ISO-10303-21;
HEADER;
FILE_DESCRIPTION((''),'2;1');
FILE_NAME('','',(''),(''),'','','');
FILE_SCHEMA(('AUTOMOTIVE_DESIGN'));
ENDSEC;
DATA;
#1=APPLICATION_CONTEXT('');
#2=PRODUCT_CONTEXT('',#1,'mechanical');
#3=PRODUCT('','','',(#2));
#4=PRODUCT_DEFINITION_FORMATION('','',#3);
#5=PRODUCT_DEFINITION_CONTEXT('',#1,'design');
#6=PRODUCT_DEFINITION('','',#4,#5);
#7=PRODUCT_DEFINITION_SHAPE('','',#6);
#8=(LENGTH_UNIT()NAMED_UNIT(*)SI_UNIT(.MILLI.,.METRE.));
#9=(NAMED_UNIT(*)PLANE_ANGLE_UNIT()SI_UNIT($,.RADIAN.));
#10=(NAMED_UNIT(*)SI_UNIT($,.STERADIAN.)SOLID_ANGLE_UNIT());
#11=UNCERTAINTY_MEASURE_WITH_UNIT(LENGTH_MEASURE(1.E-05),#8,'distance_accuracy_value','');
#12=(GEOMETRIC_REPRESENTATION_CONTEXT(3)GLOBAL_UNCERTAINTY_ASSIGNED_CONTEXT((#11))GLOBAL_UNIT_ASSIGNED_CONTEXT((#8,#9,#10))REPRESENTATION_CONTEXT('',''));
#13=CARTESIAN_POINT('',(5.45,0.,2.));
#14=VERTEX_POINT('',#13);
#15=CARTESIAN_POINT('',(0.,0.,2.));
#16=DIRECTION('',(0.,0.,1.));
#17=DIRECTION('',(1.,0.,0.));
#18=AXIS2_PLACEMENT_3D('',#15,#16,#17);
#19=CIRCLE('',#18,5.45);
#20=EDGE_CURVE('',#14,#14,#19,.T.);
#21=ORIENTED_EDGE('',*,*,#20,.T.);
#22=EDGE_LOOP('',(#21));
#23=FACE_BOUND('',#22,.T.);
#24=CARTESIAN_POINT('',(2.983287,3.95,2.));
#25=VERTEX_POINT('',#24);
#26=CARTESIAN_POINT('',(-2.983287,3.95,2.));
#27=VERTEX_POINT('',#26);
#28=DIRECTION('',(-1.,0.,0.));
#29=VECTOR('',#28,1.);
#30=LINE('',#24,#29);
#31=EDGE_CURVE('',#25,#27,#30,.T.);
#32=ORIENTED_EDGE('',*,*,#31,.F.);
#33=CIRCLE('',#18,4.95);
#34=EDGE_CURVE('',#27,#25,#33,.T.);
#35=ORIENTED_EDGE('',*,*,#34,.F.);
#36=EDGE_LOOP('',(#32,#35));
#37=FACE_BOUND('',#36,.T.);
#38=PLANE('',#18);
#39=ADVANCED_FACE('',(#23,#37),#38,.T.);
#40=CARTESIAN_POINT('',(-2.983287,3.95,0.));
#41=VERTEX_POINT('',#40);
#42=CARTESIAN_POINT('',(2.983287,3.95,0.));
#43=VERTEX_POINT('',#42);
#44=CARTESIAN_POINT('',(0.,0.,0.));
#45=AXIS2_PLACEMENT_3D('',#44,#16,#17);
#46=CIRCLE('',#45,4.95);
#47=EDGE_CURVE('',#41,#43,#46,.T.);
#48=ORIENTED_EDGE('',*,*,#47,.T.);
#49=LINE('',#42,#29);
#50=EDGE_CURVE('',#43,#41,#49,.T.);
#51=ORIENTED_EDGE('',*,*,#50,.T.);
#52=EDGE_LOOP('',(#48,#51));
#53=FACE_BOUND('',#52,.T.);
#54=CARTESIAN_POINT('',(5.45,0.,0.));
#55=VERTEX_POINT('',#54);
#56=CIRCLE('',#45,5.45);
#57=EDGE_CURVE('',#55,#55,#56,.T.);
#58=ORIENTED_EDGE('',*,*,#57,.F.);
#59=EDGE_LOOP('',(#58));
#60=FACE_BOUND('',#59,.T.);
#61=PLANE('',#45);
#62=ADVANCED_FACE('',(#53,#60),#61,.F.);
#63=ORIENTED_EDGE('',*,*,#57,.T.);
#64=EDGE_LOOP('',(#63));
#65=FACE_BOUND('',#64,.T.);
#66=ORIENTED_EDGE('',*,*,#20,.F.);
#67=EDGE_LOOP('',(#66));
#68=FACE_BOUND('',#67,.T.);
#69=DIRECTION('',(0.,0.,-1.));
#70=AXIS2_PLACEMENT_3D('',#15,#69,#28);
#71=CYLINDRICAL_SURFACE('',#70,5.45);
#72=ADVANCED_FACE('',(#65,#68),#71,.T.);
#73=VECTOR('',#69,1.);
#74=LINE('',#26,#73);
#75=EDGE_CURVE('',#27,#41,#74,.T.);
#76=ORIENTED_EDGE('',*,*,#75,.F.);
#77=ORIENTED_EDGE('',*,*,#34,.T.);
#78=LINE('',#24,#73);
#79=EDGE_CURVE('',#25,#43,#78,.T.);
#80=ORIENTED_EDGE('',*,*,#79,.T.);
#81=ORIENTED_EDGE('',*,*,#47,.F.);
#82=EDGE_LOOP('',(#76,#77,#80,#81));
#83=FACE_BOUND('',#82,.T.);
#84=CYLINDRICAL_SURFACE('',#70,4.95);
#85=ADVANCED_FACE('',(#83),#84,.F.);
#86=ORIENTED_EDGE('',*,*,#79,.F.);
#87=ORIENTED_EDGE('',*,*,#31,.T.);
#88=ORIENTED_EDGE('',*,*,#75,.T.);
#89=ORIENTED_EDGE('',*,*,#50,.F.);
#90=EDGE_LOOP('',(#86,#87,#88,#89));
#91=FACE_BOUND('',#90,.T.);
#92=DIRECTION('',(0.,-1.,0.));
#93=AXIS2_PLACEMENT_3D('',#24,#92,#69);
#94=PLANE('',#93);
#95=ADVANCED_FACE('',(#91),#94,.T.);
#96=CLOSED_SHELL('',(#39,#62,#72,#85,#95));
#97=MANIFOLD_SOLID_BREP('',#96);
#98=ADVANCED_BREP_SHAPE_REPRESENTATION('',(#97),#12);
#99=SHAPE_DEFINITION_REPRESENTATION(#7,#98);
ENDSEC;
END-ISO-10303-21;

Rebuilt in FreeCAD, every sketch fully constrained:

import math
import FreeCAD as App
import Part
import Sketcher
Q = App.Units.Quantity

doc = App.newDocument("Part")
body = doc.addObject("PartDesign::Body", "Body")

sketch1 = body.newObject("Sketcher::SketchObject", "Sketch")
sketch1.AttachmentSupport = (doc.getObject("XY_Plane"), [""])
sketch1.MapMode = "FlatFace"
sketch1.addGeometry([
    Part.Circle(App.Vector(0, 0, 0), App.Vector(0, 0, 1), 5.5),
    Part.LineSegment(App.Vector(-3, 4, 0), App.Vector(3, 4, 0)),
    Part.ArcOfCircle(Part.Circle(App.Vector(0, 0, 0), App.Vector(0, 0, 1), 5), math.radians(127), math.radians(413)),
], False)
sketch1.addConstraint([
    Sketcher.Constraint("Coincident", 1, 1, 2, 1),
    Sketcher.Constraint("Coincident", 2, 2, 1, 2),
    Sketcher.Constraint("Horizontal", 1),
    Sketcher.Constraint("Coincident", 0, 3, -1, 1),
    Sketcher.Constraint("Coincident", 2, 3, -1, 1),
    Sketcher.Constraint("Diameter", 0, Q("10.9 mm")),
    Sketcher.Constraint("Radius", 2, Q("4.95 mm")),
    Sketcher.Constraint("DistanceY", -1, 1, 1, 1, Q("3.95 mm")),
])
pad1 = body.newObject("PartDesign::Pad", "Pad")
pad1.Profile = sketch1
pad1.Length = 2

doc.recompute()
